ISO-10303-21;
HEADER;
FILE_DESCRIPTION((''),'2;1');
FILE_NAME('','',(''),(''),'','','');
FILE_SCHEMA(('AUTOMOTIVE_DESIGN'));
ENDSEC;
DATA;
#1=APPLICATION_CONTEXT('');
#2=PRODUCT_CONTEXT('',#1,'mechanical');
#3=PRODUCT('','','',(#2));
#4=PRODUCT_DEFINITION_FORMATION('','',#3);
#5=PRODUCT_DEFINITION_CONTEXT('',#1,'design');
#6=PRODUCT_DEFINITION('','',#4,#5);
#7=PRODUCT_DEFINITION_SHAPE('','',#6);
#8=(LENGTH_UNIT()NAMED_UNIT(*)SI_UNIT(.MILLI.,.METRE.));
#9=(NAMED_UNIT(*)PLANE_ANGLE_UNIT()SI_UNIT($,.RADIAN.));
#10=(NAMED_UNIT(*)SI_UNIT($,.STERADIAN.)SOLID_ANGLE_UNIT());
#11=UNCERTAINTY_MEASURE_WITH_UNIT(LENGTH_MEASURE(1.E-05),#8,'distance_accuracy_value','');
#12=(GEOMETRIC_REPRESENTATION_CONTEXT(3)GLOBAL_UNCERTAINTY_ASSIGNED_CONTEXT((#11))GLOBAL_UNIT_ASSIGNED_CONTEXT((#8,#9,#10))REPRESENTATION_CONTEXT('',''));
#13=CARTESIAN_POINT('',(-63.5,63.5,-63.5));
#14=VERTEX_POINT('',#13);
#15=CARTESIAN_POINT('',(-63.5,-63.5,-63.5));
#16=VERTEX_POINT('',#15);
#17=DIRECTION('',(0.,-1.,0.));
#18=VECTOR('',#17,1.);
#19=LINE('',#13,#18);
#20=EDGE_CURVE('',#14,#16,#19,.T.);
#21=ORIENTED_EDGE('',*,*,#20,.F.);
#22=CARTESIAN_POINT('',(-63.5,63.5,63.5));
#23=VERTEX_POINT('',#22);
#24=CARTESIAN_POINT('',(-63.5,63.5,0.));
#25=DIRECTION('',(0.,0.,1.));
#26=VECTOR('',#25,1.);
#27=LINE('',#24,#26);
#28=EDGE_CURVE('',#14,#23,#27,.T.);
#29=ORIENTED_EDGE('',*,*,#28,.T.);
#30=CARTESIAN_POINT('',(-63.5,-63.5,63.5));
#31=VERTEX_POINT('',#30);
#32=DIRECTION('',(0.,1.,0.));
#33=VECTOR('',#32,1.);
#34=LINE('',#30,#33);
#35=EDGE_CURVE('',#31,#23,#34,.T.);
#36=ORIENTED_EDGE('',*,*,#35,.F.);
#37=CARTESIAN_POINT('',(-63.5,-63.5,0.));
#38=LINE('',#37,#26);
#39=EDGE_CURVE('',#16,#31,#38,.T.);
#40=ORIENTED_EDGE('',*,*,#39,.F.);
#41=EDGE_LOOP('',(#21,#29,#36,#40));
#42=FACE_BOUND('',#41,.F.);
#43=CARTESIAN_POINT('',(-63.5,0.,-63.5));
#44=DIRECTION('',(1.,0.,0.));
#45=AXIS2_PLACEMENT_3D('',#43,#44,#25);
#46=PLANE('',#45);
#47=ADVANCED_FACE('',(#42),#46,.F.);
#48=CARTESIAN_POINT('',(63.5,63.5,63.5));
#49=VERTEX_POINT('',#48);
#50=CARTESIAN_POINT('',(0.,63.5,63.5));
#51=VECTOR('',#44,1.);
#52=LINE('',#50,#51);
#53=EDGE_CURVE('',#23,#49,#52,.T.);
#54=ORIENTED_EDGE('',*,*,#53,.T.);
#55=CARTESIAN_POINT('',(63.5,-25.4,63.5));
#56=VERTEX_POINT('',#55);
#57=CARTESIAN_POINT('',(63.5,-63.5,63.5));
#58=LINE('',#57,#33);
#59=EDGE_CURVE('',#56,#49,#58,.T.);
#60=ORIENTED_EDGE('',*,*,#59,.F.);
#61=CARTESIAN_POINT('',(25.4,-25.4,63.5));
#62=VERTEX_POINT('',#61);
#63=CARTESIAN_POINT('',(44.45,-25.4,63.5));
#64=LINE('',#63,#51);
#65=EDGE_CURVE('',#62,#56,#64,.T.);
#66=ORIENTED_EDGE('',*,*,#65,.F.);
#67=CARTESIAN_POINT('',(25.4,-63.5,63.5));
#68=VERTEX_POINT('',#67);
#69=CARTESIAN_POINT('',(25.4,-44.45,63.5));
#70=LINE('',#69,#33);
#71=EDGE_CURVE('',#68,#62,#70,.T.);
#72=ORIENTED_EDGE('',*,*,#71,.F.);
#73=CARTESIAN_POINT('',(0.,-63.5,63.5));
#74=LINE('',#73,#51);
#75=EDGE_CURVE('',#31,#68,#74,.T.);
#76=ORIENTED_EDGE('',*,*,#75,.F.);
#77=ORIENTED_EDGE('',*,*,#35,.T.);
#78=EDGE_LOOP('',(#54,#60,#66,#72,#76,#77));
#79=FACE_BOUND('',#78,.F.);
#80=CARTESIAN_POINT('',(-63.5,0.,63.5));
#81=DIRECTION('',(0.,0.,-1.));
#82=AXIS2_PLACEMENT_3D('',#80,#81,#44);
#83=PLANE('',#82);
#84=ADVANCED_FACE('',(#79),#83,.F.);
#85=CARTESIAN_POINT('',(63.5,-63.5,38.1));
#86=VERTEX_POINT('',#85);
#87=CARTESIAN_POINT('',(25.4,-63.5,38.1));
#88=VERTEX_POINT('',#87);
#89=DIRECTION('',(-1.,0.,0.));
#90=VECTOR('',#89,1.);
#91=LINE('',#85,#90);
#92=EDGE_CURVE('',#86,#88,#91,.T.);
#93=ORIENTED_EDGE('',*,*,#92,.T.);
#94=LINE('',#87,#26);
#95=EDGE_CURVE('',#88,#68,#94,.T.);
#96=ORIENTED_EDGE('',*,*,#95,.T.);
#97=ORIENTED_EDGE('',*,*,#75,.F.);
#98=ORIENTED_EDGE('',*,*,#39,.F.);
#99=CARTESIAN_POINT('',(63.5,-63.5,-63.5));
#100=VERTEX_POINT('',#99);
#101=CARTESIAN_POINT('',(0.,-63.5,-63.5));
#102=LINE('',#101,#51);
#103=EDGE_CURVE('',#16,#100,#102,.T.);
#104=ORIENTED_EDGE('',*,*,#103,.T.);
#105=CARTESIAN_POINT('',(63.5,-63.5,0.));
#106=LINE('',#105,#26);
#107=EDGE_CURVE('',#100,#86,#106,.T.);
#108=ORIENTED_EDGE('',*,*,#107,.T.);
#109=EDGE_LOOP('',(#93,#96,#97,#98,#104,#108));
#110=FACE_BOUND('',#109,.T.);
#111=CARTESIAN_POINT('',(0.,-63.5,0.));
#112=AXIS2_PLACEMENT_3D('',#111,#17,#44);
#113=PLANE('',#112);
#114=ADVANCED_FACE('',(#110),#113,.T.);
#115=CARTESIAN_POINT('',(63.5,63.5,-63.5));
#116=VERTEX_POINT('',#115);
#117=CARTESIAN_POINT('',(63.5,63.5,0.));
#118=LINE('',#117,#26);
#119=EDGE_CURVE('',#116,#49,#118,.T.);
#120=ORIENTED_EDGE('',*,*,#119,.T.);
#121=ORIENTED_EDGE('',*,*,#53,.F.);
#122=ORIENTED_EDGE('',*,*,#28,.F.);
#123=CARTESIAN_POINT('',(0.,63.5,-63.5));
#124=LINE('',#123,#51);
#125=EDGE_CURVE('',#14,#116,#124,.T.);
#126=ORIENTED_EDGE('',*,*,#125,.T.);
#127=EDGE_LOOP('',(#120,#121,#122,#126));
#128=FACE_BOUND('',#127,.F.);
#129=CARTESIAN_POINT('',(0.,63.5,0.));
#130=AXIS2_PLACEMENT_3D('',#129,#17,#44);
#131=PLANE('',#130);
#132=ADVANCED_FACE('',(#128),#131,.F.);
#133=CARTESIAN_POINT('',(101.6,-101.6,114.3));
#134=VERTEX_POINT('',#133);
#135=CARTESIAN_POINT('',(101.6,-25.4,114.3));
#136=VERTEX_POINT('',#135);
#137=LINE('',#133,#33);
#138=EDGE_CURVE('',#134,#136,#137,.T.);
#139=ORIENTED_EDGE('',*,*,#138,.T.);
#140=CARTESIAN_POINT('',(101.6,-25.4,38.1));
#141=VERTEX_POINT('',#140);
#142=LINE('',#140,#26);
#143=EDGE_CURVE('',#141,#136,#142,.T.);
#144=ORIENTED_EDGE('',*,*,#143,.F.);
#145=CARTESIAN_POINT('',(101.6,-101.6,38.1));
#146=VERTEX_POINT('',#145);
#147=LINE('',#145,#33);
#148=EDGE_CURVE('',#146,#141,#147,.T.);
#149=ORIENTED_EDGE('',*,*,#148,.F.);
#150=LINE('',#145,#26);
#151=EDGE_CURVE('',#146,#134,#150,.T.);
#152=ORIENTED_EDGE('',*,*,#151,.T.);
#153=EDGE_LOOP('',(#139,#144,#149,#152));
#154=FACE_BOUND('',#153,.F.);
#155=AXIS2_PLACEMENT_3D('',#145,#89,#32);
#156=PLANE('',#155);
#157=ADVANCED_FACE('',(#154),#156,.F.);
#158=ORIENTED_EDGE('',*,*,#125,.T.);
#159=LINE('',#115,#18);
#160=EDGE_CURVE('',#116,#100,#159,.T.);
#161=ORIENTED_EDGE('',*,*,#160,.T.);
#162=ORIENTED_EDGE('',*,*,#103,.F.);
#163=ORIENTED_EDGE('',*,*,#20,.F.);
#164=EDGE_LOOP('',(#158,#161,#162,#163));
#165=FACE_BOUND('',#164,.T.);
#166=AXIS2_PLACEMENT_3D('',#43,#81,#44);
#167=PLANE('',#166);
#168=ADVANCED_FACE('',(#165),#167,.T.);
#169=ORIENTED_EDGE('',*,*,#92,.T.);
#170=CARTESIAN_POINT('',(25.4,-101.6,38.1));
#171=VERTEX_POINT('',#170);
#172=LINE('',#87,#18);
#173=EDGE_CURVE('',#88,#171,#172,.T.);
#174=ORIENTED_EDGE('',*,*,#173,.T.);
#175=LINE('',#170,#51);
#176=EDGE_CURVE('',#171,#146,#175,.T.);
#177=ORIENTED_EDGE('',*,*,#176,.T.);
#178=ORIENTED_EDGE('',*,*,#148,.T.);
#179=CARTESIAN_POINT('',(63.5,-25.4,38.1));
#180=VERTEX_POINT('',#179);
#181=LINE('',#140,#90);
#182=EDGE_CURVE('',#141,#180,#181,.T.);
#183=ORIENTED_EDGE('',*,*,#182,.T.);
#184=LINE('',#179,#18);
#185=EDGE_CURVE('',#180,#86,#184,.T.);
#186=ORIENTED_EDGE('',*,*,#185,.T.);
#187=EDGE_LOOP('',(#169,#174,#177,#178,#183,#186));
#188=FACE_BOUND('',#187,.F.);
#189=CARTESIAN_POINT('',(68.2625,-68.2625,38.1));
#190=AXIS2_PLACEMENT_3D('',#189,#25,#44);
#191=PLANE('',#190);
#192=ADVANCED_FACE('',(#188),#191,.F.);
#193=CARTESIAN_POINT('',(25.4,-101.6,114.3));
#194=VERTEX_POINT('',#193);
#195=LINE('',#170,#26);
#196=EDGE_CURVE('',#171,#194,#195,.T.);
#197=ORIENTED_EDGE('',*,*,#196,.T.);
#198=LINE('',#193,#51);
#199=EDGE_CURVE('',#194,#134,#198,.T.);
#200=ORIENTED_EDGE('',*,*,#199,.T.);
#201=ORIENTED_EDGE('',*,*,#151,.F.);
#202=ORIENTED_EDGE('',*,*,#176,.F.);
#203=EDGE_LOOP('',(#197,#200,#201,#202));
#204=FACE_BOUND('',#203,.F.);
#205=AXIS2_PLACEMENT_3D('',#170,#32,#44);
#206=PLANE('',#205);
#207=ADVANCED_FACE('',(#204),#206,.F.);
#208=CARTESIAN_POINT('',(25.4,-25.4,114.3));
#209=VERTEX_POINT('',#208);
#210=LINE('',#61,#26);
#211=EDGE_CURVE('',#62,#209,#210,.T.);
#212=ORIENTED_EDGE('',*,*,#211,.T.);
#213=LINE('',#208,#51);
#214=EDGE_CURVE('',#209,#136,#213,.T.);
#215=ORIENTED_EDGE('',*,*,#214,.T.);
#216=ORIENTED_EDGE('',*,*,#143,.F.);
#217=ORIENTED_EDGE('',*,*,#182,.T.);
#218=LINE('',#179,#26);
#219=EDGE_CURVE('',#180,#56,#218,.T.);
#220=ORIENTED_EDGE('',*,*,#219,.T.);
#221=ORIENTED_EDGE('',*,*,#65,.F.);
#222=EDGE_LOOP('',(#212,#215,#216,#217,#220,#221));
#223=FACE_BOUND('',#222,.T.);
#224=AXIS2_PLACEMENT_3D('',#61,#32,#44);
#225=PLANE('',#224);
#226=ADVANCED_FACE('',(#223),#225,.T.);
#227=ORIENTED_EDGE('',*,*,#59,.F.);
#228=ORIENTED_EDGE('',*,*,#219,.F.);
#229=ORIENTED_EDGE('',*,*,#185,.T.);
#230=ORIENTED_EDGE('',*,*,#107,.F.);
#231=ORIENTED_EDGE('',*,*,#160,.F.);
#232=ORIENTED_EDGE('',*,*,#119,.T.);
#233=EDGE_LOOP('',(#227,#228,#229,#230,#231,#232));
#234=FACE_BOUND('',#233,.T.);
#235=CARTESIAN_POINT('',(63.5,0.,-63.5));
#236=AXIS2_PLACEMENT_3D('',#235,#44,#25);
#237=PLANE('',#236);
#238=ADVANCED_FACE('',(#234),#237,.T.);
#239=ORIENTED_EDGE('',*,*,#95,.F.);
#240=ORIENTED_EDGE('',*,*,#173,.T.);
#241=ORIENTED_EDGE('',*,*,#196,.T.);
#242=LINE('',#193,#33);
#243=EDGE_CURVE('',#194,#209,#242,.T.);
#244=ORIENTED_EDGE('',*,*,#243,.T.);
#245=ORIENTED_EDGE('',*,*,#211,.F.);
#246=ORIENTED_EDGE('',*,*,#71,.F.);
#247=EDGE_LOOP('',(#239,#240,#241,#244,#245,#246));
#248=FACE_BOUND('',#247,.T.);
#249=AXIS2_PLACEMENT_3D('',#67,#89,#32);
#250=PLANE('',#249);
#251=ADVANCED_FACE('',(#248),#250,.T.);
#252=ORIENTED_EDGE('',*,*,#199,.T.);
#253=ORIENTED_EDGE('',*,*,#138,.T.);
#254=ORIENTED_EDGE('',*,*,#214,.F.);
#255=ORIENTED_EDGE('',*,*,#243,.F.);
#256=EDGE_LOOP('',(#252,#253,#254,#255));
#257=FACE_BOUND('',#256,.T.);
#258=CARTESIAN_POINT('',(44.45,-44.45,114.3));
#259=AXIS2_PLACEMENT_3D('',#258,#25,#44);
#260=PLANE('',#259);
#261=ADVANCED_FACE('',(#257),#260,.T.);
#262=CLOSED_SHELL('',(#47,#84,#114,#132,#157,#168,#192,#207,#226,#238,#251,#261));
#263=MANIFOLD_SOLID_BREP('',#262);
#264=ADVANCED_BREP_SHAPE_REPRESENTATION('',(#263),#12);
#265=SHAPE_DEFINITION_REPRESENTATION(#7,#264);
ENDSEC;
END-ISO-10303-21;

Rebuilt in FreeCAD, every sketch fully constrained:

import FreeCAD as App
import Part
import Sketcher

V = App.Vector
Q = App.Units.Quantity


def add_polygon(sketch, points):
    """Adds a closed chain of lines whose ends are joined by coincident constraints."""
    first, n = sketch.GeometryCount, len(points)
    for a, b in zip(points, points[1:] + points[:1]):
        sketch.addGeometry(Part.LineSegment(App.Vector(*a, 0), App.Vector(*b, 0)), False)
    for i in range(n):
        sketch.addConstraint(Sketcher.Constraint("Coincident", first + i, 2, first + (i + 1) % n, 1))

doc = App.newDocument("Part")
body = doc.addObject("PartDesign::Body", "Body")

sketch1 = body.newObject("Sketcher::SketchObject", "Sketch")
sketch1.AttachmentSupport = (doc.getObject("XZ_Plane"), [""])
sketch1.MapMode = "FlatFace"
add_polygon(sketch1, [(-63.5, 63.5), (-63.5, -63.5), (63.5, -63.5), (63.5, 63.5)])
sketch1.addConstraint([
    Sketcher.Constraint("Vertical", 0),
    Sketcher.Constraint("Horizontal", 1),
    Sketcher.Constraint("Vertical", 2),
    Sketcher.Constraint("Horizontal", 3),
    Sketcher.Constraint("Symmetric", 0, 2, 2, 2, -1, 1),
    Sketcher.Constraint("Equal", 3, 0),
    Sketcher.Constraint("DistanceX", 1, 1, 1, 2, Q("5 in")),
])
pad1 = body.newObject("PartDesign::Pad", "Pad")
pad1.Profile = sketch1
pad1.Length = Q("5 in")
pad1.Midplane = True

sketch2 = body.newObject("Sketcher::SketchObject", "Sketch001")
sketch2.AttachmentSupport = (doc.getObject("XY_Plane"), [""])
sketch2.MapMode = "FlatFace"
sketch2.AttachmentOffset = App.Placement(V(0, 0, 1.5 * 25.4), App.Rotation())
add_polygon(sketch2, [(101.6, -25.4), (63.5, -25.4), (63.5, -63.5), (25.4, -63.5), (25.4, -101.6), (101.6, -101.6)])
sketch2.addConstraint([
    Sketcher.Constraint("Horizontal", 0),
    Sketcher.Constraint("Vertical", 1),
    Sketcher.Constraint("Horizontal", 2),
    Sketcher.Constraint("Vertical", 3),
    Sketcher.Constraint("Horizontal", 4),
    Sketcher.Constraint("Vertical", 5),
    Sketcher.Constraint("Equal", 0, 2),
    Sketcher.Constraint("Equal", 2, 1),
    Sketcher.Constraint("Equal", 1, 3),
    Sketcher.Constraint("DistanceX", 4, 1, 4, 2, Q("3 in")),
    Sketcher.Constraint("DistanceY", 0, 2, -1, 1, Q("1 in")),
    Sketcher.Constraint("DistanceX", -1, 1, 2, 2, Q("1 in")),
])
pad2 = body.newObject("PartDesign::Pad", "Pad001")
pad2.Profile = sketch2
pad2.Length = Q("3 in")

sketch3 = body.newObject("Sketcher::SketchObject", "Sketch002")
sketch3.AttachmentSupport = (doc.getObject("XY_Plane"), [""])
sketch3.MapMode = "FlatFace"
sketch3.AttachmentOffset = App.Placement(V(0, 0, 2.5 * 25.4), App.Rotation())
add_polygon(sketch3, [(25.4, -25.4), (25.4, -63.5), (63.5, -63.5), (63.5, -25.4)])
sketch3.addConstraint([
    Sketcher.Constraint("Vertical", 0),
    Sketcher.Constraint("Horizontal", 1),
    Sketcher.Constraint("Vertical", 2),
    Sketcher.Constraint("Horizontal", 3),
    Sketcher.Constraint("Equal", 3, 0),
    Sketcher.Constraint("DistanceX", 1, 1, 1, 2, Q("1.5 in")),
    Sketcher.Constraint("DistanceX", -1, 1, 0, 2, Q("1 in")),
    Sketcher.Constraint("DistanceY", 2, 2, -1, 1, Q("1 in")),
])
pad3 = body.newObject("PartDesign::Pad", "Pad002")
pad3.Profile = sketch3
pad3.Length = Q("2 in")

doc.recompute()
